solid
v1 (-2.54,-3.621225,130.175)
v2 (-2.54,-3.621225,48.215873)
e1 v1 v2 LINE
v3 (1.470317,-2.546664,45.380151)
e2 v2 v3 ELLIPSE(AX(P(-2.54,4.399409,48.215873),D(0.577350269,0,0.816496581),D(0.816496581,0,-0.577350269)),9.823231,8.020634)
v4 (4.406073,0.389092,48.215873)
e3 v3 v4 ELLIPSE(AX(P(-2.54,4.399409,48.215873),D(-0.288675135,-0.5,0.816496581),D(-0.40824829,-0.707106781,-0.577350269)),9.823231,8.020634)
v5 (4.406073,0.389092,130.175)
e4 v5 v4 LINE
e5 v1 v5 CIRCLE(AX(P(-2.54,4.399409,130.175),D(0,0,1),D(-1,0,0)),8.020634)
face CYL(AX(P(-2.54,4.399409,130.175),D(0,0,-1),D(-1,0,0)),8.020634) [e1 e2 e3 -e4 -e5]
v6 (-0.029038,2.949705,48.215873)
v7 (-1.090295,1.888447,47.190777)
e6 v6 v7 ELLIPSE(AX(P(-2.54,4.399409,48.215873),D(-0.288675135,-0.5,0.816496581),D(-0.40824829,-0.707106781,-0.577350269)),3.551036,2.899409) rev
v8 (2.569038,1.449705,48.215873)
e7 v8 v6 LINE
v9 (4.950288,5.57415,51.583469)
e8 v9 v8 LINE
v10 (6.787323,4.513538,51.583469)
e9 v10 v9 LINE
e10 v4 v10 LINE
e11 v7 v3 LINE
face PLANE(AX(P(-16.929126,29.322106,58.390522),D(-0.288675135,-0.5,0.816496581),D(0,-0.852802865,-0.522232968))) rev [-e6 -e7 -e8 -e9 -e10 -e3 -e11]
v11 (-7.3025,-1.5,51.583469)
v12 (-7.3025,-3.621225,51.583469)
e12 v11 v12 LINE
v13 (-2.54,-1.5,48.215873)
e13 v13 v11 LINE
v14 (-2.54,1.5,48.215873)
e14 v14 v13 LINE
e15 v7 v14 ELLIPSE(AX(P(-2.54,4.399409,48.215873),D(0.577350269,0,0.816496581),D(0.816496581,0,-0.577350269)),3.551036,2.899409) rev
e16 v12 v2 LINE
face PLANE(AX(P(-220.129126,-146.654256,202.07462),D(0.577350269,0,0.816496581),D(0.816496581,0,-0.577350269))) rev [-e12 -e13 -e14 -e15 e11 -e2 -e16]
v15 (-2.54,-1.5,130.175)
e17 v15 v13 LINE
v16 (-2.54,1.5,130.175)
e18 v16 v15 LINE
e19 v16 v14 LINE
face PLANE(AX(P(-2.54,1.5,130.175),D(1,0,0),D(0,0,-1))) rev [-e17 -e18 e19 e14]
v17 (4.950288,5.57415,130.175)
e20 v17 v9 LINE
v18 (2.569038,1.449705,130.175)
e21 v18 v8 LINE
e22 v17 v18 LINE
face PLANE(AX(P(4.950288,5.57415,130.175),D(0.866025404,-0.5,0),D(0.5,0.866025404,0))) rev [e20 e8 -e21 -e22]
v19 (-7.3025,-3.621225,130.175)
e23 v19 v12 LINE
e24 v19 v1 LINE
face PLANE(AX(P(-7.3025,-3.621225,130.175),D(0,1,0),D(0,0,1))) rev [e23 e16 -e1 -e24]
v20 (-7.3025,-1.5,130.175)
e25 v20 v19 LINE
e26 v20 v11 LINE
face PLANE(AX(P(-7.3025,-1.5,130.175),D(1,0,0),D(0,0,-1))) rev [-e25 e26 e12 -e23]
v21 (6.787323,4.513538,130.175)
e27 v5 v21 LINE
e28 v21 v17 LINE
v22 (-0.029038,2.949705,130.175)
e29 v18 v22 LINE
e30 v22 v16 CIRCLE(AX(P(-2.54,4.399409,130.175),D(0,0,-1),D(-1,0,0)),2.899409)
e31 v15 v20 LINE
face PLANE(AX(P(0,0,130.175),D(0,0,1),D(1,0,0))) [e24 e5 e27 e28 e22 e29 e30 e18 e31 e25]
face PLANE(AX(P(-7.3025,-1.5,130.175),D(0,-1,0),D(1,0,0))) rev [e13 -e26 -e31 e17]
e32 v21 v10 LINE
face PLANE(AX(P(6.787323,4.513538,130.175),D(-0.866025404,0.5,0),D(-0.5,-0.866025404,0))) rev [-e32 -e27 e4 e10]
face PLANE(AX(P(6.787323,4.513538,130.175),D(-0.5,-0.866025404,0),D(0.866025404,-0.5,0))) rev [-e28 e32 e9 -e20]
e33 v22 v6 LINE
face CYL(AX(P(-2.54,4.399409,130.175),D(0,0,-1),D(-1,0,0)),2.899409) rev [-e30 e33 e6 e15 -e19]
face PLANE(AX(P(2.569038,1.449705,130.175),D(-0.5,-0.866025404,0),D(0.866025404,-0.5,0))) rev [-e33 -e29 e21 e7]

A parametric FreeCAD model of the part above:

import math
import FreeCAD as App
import Part
import Sketcher
from FreeCAD import Vector
Q = App.Units.Quantity


def add_polygon(sketch, points):
    """Adds a closed chain of lines whose ends are joined by coincident constraints."""
    first, n = sketch.GeometryCount, len(points)
    for a, b in zip(points, points[1:] + points[:1]):
        sketch.addGeometry(Part.LineSegment(App.Vector(*a, 0), App.Vector(*b, 0)), False)
    for i in range(n):
        sketch.addConstraint(Sketcher.Constraint("Coincident", first + i, 2, first + (i + 1) % n, 1))

doc = App.newDocument("Part")
params = doc.addObject("Spreadsheet::Sheet", "Params")
for row, (alias, value) in enumerate([
    ("sketch1_width", "0.1875 in"),
    ("pad1_length", "10.25 in"),
    ("sketch2_length", "0.1875 in"),
    ("pad2_length", "10.25 in"),
    ("sketch3_width", "0.1875 in"),
    ("sketch3_length", "0.1875 in"),
    ("pad3_length", "10.25 in"),
    ("sketch4_width", "12 in"),
    ("sketch4_length", "12 in"),
], start=1):
    params.set(f"A{row}", alias)
    params.set(f"B{row}", "=" + value)
    params.setAlias(f"B{row}", alias)

body = doc.addObject("PartDesign::Body", "Body")

# Sketch on XY plane
sketch1 = body.newObject("Sketcher::SketchObject", "Sketch")
sketch1.AttachmentSupport = (doc.getObject("XY_Plane"), [""])
sketch1.MapMode = "FlatFace"
add_polygon(sketch1, [(-7.3, -1.5), (-7.3, -3.6), (-2.5, -3.6), (-2.5, -1.5)])  # lines 0-3
sketch1.addConstraint([
    Sketcher.Constraint("Vertical", 0),
    Sketcher.Constraint("Horizontal", 1),
    Sketcher.Constraint("Vertical", 2),
    Sketcher.Constraint("Horizontal", 3),
    Sketcher.Constraint("DistanceX", 1, 2, -1, 1, Q("0.1 in")),
    Sketcher.Constraint("DistanceX", 1, 1, 1, 2, Q("0.1875 in")),
    Sketcher.Constraint("DistanceY", 2, 2, -1, 1, 1.5),
    Sketcher.Constraint("DistanceY", 0, 2, 0, 1, 2.121225),
])
sketch1.setExpression("Constraints[9]", "Params.sketch1_width")
pad1 = body.newObject("PartDesign::Pad", "Pad")
pad1.Profile = sketch1
pad1.setExpression("Length", "Params.pad1_length")
pad1.Midplane = True
body2 = doc.addObject("PartDesign::Body", "Body001")

# Sketch on XY plane
sketch2 = body2.newObject("Sketcher::SketchObject", "Sketch001")
sketch2.AttachmentSupport = (doc.getObject("XY_Plane001"), [""])
sketch2.MapMode = "FlatFace"
add_polygon(sketch2, [(5, 5.6), (2.6, 1.4), (4.4, 0.4), (6.8, 4.5)])  # lines 0-3
sketch2.addConstraint([
    Sketcher.Constraint("Perpendicular", 0, 1),
    Sketcher.Constraint("Perpendicular", 1, 2),
    Sketcher.Constraint("Perpendicular", 2, 3),
    Sketcher.Constraint("Angle", 0, Q("-120 deg")),
    Sketcher.Constraint("Distance", 0, Q("0.1875 in")),
    Sketcher.Constraint("DistanceX", -1, 1, 0, 2, 2.569038),
    Sketcher.Constraint("DistanceY", -1, 1, 1, 2, 0.389092),
    Sketcher.Constraint("DistanceY", -1, 1, 3, 2, 5.57415),
])
sketch2.setExpression("Constraints[8]", "Params.sketch2_length")
pad2 = body2.newObject("PartDesign::Pad", "Pad001")
pad2.Profile = sketch2
pad2.setExpression("Length", "Params.pad2_length")
pad2.Midplane = True
body.AllowCompound = True
doc.recompute()

boolean = body.newObject("PartDesign::Boolean", "Boolean")
boolean.Type = "Fuse"
boolean.addObjects([body2])

# Sketch on XY plane
sketch3 = body.newObject("Sketcher::SketchObject", "Sketch002")
sketch3.AttachmentSupport = (doc.getObject("XY_Plane"), [""])
sketch3.MapMode = "FlatFace"
sketch3.addGeometry([
    Part.LineSegment(Vector(-2.5, -1.5, 0), Vector(-7.3, -1.5, 0)),  # 0
    Part.LineSegment(Vector(-7.3, -1.5, 0), Vector(-7.3, -3.6, 0)),  # 1
    Part.LineSegment(Vector(-7.3, -3.6, 0), Vector(-2.5, -3.6, 0)),  # 2
    Part.ArcOfCircle(Part.Circle(Vector(-2.5, 4.4, 0), Vector(0, 0, 1), 8), math.radians(-90), math.radians(-30)),  # 3
    Part.LineSegment(Vector(4.4, 0.4, 0), Vector(6.8, 4.5, 0)),  # 4
    Part.LineSegment(Vector(6.8, 4.5, 0), Vector(5, 5.6, 0)),  # 5
    Part.LineSegment(Vector(5, 5.6, 0), Vector(2.6, 1.4, 0)),  # 6
    Part.LineSegment(Vector(2.6, 1.4, 0), Vector(0, 2.9, 0)),  # 7
    Part.ArcOfCircle(Part.Circle(Vector(-2.5, 4.4, 0), Vector(0, 0, 1), 2.9), math.radians(-90), math.radians(-30)),  # 8
    Part.LineSegment(Vector(-2.5, 1.5, 0), Vector(-2.5, -1.5, 0)),  # 9
], False)
sketch3.addConstraint([
    Sketcher.Constraint("Coincident", 0, 2, 1, 1),
    Sketcher.Constraint("Coincident", 1, 2, 2, 1),
    Sketcher.Constraint("Tangent", 2, 2, 3, 1),
    Sketcher.Constraint("Tangent", 3, 2, 4, 1),
    Sketcher.Constraint("Coincident", 4, 2, 5, 1),
    Sketcher.Constraint("Coincident", 5, 2, 6, 1),
    Sketcher.Constraint("Coincident", 6, 2, 7, 1),
    Sketcher.Constraint("Coincident", 7, 2, 8, 2),
    Sketcher.Constraint("Coincident", 8, 1, 9, 1),
    Sketcher.Constraint("Coincident", 9, 2, 0, 1),
    Sketcher.Constraint("Horizontal", 0),
    Sketcher.Constraint("Vertical", 1),
    Sketcher.Constraint("Horizontal", 2),
    Sketcher.Constraint("Vertical", 9),
    Sketcher.Constraint("Coincident", 8, 3, 3, 3),
    Sketcher.Constraint("Perpendicular", 4, 5),
    Sketcher.Constraint("Perpendicular", 5, 6),
    Sketcher.Constraint("Perpendicular", 6, 7),
    Sketcher.Constraint("Vertical", 2, 2, 8, 1),
    Sketcher.Constraint("Equal", 4, 6),
    Sketcher.Constraint("Angle", 4, Q("60 deg")),
    Sketcher.Constraint("DistanceX", 3, 3, -1, 1, Q("0.1 in")),
    Sketcher.Constraint("DistanceX", 0, 2, 0, 1, Q("0.1875 in")),
    Sketcher.Constraint("Distance", 4, Q("0.1875 in")),
    Sketcher.Constraint("Radius", 8, 2.899409),
    Sketcher.Constraint("DistanceY", 9, 2, 9, 1, 3.0),
    Sketcher.Constraint("Radius", 3, 8.020634),
    Sketcher.Constraint("Distance", 7, 3.0),
    Sketcher.Constraint("DistanceY", 0, 2, -1, 1, 1.5),
])
sketch3.setExpression("Constraints[22]", "Params.sketch3_width")
sketch3.setExpression("Constraints[23]", "Params.sketch3_length")
pad3 = body.newObject("PartDesign::Pad", "Pad002")
pad3.Profile = sketch3
pad3.setExpression("Length", "Params.pad3_length")
pad3.Midplane = True

# Sketch on an angled plane
sketch4 = body.newObject("Sketcher::SketchObject", "Sketch003")
sketch4.Placement = App.Placement(Vector(0, 0, 46.419822), App.Rotation(Vector(-0.666666667, -0.577350269, 0.471404521), Vector(-0.577350269, 0, -0.816496581), Vector(0.471404521, -0.816496581, -0.333333333), "ZXY"))
add_polygon(sketch4, [(0, 0), (305, 0), (152, 264), (-152, 264), (-305, 0), (-152, -264)])  # lines 0-5
sketch4.addConstraint([
    Sketcher.Constraint("Horizontal", 0),
    Sketcher.Constraint("Horizontal", 2),
    Sketcher.Constraint("Coincident", 5, 2, -1, 1),
    Sketcher.Constraint("Symmetric", 0, 2, 3, 2, -1, 1),
    Sketcher.Constraint("Symmetric", 1, 2, 4, 2, -1, 1),
    Sketcher.Constraint("Parallel", 3, 5),
    Sketcher.Constraint("Vertical", 2, 2, 4, 2),
    Sketcher.Constraint("DistanceX", 0, 1, 0, 2, Q("12 in")),
    Sketcher.Constraint("Distance", 1, Q("12 in")),
])
sketch4.setExpression("Constraints[13]", "Params.sketch4_width")
sketch4.setExpression("Constraints[14]", "Params.sketch4_length")
pocket1 = body.newObject("PartDesign::Pocket", "Pocket")
pocket1.Profile = sketch4
pocket1.Type = "ThroughAll"
pocket1.Midplane = True

doc.recompute()
